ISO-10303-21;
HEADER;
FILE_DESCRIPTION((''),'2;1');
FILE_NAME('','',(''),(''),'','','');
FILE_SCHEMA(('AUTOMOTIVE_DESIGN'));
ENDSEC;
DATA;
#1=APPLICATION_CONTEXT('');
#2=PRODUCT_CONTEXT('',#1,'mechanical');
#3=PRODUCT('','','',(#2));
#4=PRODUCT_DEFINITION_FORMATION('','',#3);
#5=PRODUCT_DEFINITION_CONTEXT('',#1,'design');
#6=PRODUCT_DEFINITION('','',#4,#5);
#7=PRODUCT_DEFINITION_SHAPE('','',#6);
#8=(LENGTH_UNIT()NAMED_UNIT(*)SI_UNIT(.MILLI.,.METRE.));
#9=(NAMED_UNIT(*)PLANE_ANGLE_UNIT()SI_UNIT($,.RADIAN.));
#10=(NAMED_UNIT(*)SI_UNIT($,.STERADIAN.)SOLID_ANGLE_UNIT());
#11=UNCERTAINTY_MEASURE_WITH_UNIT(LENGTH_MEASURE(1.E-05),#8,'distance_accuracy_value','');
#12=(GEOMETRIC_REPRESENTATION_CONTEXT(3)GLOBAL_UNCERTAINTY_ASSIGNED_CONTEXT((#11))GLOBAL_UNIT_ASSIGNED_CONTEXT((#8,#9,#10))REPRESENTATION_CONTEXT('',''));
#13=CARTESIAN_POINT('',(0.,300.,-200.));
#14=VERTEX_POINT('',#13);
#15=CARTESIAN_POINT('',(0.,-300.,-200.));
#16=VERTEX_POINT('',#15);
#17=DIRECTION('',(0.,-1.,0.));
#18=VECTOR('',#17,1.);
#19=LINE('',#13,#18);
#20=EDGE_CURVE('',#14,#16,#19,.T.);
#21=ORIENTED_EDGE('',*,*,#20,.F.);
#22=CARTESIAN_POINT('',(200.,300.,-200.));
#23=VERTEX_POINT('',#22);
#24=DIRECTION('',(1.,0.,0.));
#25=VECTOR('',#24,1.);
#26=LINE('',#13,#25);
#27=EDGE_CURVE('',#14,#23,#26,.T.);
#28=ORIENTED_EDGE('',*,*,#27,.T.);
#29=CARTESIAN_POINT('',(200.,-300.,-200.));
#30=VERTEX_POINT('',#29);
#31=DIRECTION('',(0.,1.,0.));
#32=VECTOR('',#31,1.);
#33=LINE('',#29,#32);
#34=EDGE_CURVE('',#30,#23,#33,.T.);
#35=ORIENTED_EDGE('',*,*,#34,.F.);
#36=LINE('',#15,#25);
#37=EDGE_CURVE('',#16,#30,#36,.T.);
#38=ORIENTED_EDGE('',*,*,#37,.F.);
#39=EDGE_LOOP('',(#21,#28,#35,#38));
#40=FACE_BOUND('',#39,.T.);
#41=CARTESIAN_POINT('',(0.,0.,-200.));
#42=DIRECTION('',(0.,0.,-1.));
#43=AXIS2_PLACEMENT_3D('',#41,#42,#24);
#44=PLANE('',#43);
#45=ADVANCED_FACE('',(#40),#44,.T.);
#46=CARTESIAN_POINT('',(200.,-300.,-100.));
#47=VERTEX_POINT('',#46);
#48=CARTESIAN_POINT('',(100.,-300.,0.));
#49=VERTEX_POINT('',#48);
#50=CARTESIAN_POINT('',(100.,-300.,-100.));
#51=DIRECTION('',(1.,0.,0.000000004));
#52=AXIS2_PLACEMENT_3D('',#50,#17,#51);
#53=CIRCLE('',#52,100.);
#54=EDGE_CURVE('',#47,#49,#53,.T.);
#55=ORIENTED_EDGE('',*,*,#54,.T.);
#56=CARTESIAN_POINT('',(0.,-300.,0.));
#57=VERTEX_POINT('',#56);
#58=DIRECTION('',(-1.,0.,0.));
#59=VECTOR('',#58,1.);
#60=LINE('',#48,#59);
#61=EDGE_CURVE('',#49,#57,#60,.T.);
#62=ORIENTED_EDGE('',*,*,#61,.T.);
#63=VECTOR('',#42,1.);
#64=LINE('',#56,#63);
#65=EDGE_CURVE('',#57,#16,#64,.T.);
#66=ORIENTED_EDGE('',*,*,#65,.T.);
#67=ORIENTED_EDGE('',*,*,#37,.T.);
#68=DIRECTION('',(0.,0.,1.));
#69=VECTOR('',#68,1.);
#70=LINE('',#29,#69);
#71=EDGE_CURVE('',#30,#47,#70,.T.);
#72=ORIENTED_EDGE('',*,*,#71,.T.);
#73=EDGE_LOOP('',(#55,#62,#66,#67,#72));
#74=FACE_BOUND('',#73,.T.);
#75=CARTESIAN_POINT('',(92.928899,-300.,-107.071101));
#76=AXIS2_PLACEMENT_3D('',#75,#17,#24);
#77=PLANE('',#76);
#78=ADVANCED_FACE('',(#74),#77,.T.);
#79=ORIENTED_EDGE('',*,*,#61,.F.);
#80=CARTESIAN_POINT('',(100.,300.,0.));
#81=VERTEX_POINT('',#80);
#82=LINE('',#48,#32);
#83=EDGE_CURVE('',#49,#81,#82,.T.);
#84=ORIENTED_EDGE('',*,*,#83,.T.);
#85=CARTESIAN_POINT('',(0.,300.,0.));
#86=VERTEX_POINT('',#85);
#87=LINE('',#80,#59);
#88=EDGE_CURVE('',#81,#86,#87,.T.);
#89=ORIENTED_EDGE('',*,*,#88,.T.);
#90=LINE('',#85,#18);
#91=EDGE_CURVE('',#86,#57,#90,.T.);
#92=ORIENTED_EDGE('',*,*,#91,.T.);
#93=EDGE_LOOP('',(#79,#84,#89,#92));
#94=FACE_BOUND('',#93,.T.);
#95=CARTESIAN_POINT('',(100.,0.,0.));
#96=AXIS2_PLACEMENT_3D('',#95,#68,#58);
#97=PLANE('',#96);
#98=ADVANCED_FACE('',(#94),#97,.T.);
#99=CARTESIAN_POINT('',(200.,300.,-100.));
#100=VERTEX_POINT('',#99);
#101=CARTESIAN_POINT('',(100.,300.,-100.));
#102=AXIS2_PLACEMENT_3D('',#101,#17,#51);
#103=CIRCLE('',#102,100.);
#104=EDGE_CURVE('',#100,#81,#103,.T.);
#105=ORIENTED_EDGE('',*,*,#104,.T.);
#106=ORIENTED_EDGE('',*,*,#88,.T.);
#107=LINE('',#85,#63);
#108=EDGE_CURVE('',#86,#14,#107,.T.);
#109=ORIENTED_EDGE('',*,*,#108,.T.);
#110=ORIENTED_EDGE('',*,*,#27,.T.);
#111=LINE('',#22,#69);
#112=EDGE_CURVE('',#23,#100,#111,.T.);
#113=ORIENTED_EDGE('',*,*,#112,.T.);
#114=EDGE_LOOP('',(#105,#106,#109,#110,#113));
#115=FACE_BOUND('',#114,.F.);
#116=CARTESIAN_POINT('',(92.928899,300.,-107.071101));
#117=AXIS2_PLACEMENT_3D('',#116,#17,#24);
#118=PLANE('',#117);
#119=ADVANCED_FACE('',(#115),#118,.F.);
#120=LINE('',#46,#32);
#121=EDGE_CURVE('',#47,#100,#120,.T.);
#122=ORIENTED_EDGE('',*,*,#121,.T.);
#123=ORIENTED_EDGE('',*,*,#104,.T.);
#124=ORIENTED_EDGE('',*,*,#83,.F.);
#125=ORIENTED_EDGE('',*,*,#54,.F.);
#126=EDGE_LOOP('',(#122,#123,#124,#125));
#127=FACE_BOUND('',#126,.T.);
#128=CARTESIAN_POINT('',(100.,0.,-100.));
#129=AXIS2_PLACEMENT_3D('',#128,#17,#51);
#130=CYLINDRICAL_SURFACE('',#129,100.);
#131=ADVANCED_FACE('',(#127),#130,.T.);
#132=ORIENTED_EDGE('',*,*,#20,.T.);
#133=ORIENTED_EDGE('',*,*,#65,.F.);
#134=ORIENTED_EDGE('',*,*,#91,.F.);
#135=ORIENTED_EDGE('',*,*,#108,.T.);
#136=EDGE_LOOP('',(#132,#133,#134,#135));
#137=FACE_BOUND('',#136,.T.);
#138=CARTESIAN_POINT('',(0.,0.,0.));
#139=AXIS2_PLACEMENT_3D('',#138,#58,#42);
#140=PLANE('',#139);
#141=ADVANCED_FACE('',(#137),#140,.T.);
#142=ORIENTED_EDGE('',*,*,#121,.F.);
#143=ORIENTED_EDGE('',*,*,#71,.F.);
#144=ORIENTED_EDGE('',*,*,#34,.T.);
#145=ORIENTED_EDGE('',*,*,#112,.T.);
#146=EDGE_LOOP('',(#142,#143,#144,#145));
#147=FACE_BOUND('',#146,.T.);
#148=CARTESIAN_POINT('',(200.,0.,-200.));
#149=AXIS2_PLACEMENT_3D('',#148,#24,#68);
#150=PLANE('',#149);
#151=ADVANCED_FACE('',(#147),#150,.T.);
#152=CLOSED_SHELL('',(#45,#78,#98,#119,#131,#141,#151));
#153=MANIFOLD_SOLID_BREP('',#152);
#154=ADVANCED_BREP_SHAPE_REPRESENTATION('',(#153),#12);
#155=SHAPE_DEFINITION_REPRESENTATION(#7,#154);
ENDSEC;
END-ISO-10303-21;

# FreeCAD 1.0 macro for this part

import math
import FreeCAD as App
import Part
import Sketcher
from FreeCAD import Vector
Q = App.Units.Quantity

doc = App.newDocument("Part")
body = doc.addObject("PartDesign::Body", "Body")

# Sketch on XZ plane
sketch1 = doc.addObject("Sketcher::SketchObject", "Sketch")
body.addObject(sketch1)
sketch1.AttachmentSupport = (doc.XZ_Plane, [""])
sketch1.MapMode = "FlatFace"
sketch1.addGeometry([
    Part.LineSegment(Vector(100, 0, 0), Vector(0, 0, 0)),  # 0
    Part.LineSegment(Vector(0, 0, 0), Vector(0, -200, 0)),  # 1
    Part.LineSegment(Vector(0, -200, 0), Vector(200, -200, 0)),  # 2
    Part.LineSegment(Vector(200, -200, 0), Vector(200, -100, 0)),  # 3
    Part.ArcOfCircle(Part.Circle(Vector(100, -100, 0), Vector(0, 0, 1), 100), math.radians(0), math.radians(90)),  # 4
], False)
sketch1.addConstraint([
    Sketcher.Constraint("Coincident", 0, 2, 1, 1),
    Sketcher.Constraint("Coincident", 1, 2, 2, 1),
    Sketcher.Constraint("Coincident", 2, 2, 3, 1),
    Sketcher.Constraint("Tangent", 3, 2, 4, 1),
    Sketcher.Constraint("Tangent", 4, 2, 0, 1),
    Sketcher.Constraint("Horizontal", 0),
    Sketcher.Constraint("Vertical", 1),
    Sketcher.Constraint("Horizontal", 2),
    Sketcher.Constraint("Vertical", 3),
    Sketcher.Constraint("Coincident", 0, 2, -1, 1),
    Sketcher.Constraint("Equal", 2, 1),
    Sketcher.Constraint("Radius", 4, Q("100 mm")),
    Sketcher.Constraint("DistanceX", 0, 2, 0, 1, Q("100 mm")),
])
pad1 = doc.addObject("PartDesign::Pad", "Pad")
body.addObject(pad1)
pad1.Profile = sketch1
pad1.Length = 600
pad1.Midplane = True

doc.recompute()
